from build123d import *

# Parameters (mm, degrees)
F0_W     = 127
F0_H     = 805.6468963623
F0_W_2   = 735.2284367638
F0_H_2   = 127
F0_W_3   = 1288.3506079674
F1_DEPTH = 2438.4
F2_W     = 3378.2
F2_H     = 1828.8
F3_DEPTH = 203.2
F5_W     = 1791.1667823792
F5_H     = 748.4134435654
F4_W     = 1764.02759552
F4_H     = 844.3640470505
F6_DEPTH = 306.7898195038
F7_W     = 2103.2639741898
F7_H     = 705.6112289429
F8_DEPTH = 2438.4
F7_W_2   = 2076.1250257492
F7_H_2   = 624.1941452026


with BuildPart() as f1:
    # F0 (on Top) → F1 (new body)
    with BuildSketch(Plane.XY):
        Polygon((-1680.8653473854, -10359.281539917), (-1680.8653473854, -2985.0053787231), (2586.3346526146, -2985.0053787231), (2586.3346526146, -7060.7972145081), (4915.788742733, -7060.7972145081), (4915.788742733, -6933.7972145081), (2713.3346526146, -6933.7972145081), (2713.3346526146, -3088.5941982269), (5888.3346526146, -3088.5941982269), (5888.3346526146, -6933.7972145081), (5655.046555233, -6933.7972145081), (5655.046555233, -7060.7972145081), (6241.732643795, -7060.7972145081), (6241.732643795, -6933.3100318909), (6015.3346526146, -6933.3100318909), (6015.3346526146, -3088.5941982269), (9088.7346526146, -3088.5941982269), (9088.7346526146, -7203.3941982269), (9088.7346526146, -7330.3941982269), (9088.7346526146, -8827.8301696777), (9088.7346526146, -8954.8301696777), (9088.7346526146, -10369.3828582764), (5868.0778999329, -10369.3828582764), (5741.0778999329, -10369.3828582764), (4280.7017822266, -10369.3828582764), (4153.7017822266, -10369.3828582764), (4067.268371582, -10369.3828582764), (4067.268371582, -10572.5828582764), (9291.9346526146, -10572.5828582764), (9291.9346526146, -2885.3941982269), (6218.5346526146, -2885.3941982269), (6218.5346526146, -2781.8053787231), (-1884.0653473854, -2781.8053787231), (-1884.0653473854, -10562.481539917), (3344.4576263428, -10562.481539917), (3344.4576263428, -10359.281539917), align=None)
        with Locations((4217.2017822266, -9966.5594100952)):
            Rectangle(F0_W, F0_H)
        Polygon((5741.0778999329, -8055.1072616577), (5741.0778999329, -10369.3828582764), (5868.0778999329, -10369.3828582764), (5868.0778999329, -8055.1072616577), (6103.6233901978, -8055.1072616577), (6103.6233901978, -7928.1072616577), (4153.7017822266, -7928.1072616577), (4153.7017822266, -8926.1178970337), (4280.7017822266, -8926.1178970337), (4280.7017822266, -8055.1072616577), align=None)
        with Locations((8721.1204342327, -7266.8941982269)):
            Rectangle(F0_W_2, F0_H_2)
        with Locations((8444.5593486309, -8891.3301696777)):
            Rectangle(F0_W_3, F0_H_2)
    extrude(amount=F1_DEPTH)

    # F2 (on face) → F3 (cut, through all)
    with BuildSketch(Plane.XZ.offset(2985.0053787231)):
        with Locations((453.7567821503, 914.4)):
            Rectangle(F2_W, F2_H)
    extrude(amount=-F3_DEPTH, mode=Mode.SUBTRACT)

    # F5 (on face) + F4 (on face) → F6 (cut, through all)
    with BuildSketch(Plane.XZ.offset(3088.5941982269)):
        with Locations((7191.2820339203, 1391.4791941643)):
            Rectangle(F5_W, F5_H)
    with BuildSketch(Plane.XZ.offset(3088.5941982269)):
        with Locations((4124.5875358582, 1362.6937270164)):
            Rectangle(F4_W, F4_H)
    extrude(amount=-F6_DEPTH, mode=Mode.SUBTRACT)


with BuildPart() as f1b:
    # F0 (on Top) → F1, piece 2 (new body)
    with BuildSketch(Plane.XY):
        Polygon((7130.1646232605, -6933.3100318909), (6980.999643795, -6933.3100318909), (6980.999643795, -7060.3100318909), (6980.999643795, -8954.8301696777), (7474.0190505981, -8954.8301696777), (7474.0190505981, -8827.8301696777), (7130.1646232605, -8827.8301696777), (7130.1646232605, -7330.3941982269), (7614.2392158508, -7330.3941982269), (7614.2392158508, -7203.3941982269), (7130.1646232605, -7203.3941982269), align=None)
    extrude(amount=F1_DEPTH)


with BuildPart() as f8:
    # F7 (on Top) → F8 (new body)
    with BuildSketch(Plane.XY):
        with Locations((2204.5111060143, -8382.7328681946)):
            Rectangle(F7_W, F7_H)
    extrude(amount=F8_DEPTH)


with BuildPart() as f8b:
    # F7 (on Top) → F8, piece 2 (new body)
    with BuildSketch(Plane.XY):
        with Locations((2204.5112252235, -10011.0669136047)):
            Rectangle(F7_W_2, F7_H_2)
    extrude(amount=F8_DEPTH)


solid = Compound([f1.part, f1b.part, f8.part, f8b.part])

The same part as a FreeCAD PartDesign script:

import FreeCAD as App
import Part
import Sketcher
Q = App.Units.Quantity

doc = App.newDocument("Part")
body = doc.addObject("PartDesign::Body", "Body")

sketch1 = body.newObject("Sketcher::SketchObject", "Sketch")
sketch1.AttachmentSupport = (doc.getObject("XY_Plane"), [""])
sketch1.MapMode = "FlatFace"
sketch1.addGeometry([
    Part.LineSegment(App.Vector(-1681, -10359, 0), App.Vector(-1681, -2985, 0)),
    Part.LineSegment(App.Vector(-1681, -2985, 0), App.Vector(2586, -2985, 0)),
    Part.LineSegment(App.Vector(2586, -2985, 0), App.Vector(2586, -7061, 0)),
    Part.LineSegment(App.Vector(2586, -7061, 0), App.Vector(4916, -7061, 0)),
    Part.LineSegment(App.Vector(4916, -7061, 0), App.Vector(4916, -6934, 0)),
    Part.LineSegment(App.Vector(4916, -6934, 0), App.Vector(2713, -6934, 0)),
    Part.LineSegment(App.Vector(2713, -6934, 0), App.Vector(2713, -3089, 0)),
    Part.LineSegment(App.Vector(2713, -3089, 0), App.Vector(5888, -3089, 0)),
    Part.LineSegment(App.Vector(5888, -3089, 0), App.Vector(5888, -6934, 0)),
    Part.LineSegment(App.Vector(5888, -6934, 0), App.Vector(5655, -6934, 0)),
    Part.LineSegment(App.Vector(5655, -6934, 0), App.Vector(5655, -7061, 0)),
    Part.LineSegment(App.Vector(5655, -7061, 0), App.Vector(6242, -7061, 0)),
    Part.LineSegment(App.Vector(6242, -7061, 0), App.Vector(6242, -6933, 0)),
    Part.LineSegment(App.Vector(6242, -6933, 0), App.Vector(6015, -6933, 0)),
    Part.LineSegment(App.Vector(6015, -6933, 0), App.Vector(6015, -3089, 0)),
    Part.LineSegment(App.Vector(6015, -3089, 0), App.Vector(9089, -3089, 0)),
    Part.LineSegment(App.Vector(9089, -3089, 0), App.Vector(9089, -7203, 0)),
    Part.LineSegment(App.Vector(9089, -7203, 0), App.Vector(8354, -7203, 0)),
    Part.LineSegment(App.Vector(8354, -7203, 0), App.Vector(8354, -7330, 0)),
    Part.LineSegment(App.Vector(8354, -7330, 0), App.Vector(9089, -7330, 0)),
    Part.LineSegment(App.Vector(9089, -7330, 0), App.Vector(9089, -8828, 0)),
    Part.LineSegment(App.Vector(9089, -8828, 0), App.Vector(7800, -8828, 0)),
    Part.LineSegment(App.Vector(7800, -8828, 0), App.Vector(7800, -8955, 0)),
    Part.LineSegment(App.Vector(7800, -8955, 0), App.Vector(9089, -8955, 0)),
    Part.LineSegment(App.Vector(9089, -8955, 0), App.Vector(9089, -10369, 0)),
    Part.LineSegment(App.Vector(9089, -10369, 0), App.Vector(5868, -10369, 0)),
    Part.LineSegment(App.Vector(5868, -10369, 0), App.Vector(5868, -8055, 0)),
    Part.LineSegment(App.Vector(5868, -8055, 0), App.Vector(6104, -8055, 0)),
    Part.LineSegment(App.Vector(6104, -8055, 0), App.Vector(6104, -7928, 0)),
    Part.LineSegment(App.Vector(6104, -7928, 0), App.Vector(4154, -7928, 0)),
    Part.LineSegment(App.Vector(4154, -7928, 0), App.Vector(4154, -8926, 0)),
    Part.LineSegment(App.Vector(4154, -8926, 0), App.Vector(4281, -8926, 0)),
    Part.LineSegment(App.Vector(4281, -8926, 0), App.Vector(4281, -8055, 0)),
    Part.LineSegment(App.Vector(4281, -8055, 0), App.Vector(5741, -8055, 0)),
    Part.LineSegment(App.Vector(5741, -8055, 0), App.Vector(5741, -10369, 0)),
    Part.LineSegment(App.Vector(5741, -10369, 0), App.Vector(4281, -10369, 0)),
    Part.LineSegment(App.Vector(4281, -10369, 0), App.Vector(4281, -9564, 0)),
    Part.LineSegment(App.Vector(4281, -9564, 0), App.Vector(4154, -9564, 0)),
    Part.LineSegment(App.Vector(4154, -9564, 0), App.Vector(4154, -10369, 0)),
    Part.LineSegment(App.Vector(4154, -10369, 0), App.Vector(4067, -10369, 0)),
    Part.LineSegment(App.Vector(4067, -10369, 0), App.Vector(4067, -10573, 0)),
    Part.LineSegment(App.Vector(4067, -10573, 0), App.Vector(9292, -10573, 0)),
    Part.LineSegment(App.Vector(9292, -10573, 0), App.Vector(9292, -2885, 0)),
    Part.LineSegment(App.Vector(9292, -2885, 0), App.Vector(6219, -2885, 0)),
    Part.LineSegment(App.Vector(6219, -2885, 0), App.Vector(6219, -2782, 0)),
    Part.LineSegment(App.Vector(6219, -2782, 0), App.Vector(-1884, -2782, 0)),
    Part.LineSegment(App.Vector(-1884, -2782, 0), App.Vector(-1884, -10562, 0)),
    Part.LineSegment(App.Vector(-1884, -10562, 0), App.Vector(3344, -10562, 0)),
    Part.LineSegment(App.Vector(3344, -10562, 0), App.Vector(3344, -10359, 0)),
    Part.LineSegment(App.Vector(3344, -10359, 0), App.Vector(-1681, -10359, 0)),
], False)
sketch1.addConstraint([
    Sketcher.Constraint("Coincident", 0, 2, 1, 1),
    Sketcher.Constraint("Coincident", 1, 2, 2, 1),
    Sketcher.Constraint("Coincident", 2, 2, 3, 1),
    Sketcher.Constraint("Coincident", 3, 2, 4, 1),
    Sketcher.Constraint("Coincident", 4, 2, 5, 1),
    Sketcher.Constraint("Coincident", 5, 2, 6, 1),
    Sketcher.Constraint("Coincident", 6, 2, 7, 1),
    Sketcher.Constraint("Coincident", 7, 2, 8, 1),
    Sketcher.Constraint("Coincident", 8, 2, 9, 1),
    Sketcher.Constraint("Coincident", 9, 2, 10, 1),
    Sketcher.Constraint("Coincident", 10, 2, 11, 1),
    Sketcher.Constraint("Coincident", 11, 2, 12, 1),
    Sketcher.Constraint("Coincident", 12, 2, 13, 1),
    Sketcher.Constraint("Coincident", 13, 2, 14, 1),
    Sketcher.Constraint("Coincident", 14, 2, 15, 1),
    Sketcher.Constraint("Coincident", 15, 2, 16, 1),
    Sketcher.Constraint("Coincident", 16, 2, 17, 1),
    Sketcher.Constraint("Coincident", 17, 2, 18, 1),
    Sketcher.Constraint("Coincident", 18, 2, 19, 1),
    Sketcher.Constraint("Coincident", 19, 2, 20, 1),
    Sketcher.Constraint("Coincident", 20, 2, 21, 1),
    Sketcher.Constraint("Coincident", 21, 2, 22, 1),
    Sketcher.Constraint("Coincident", 22, 2, 23, 1),
    Sketcher.Constraint("Coincident", 23, 2, 24, 1),
    Sketcher.Constraint("Coincident", 24, 2, 25, 1),
    Sketcher.Constraint("Coincident", 25, 2, 26, 1),
    Sketcher.Constraint("Coincident", 26, 2, 27, 1),
    Sketcher.Constraint("Coincident", 27, 2, 28, 1),
    Sketcher.Constraint("Coincident", 28, 2, 29, 1),
    Sketcher.Constraint("Coincident", 29, 2, 30, 1),
    Sketcher.Constraint("Coincident", 30, 2, 31, 1),
    Sketcher.Constraint("Coincident", 31, 2, 32, 1),
    Sketcher.Constraint("Coincident", 32, 2, 33, 1),
    Sketcher.Constraint("Coincident", 33, 2, 34, 1),
    Sketcher.Constraint("Coincident", 34, 2, 35, 1),
    Sketcher.Constraint("Coincident", 35, 2, 36, 1),
    Sketcher.Constraint("Coincident", 36, 2, 37, 1),
    Sketcher.Constraint("Coincident", 37, 2, 38, 1),
    Sketcher.Constraint("Coincident", 38, 2, 39, 1),
    Sketcher.Constraint("Coincident", 39, 2, 40, 1),
    Sketcher.Constraint("Coincident", 40, 2, 41, 1),
    Sketcher.Constraint("Coincident", 41, 2, 42, 1),
    Sketcher.Constraint("Coincident", 42, 2, 43, 1),
    Sketcher.Constraint("Coincident", 43, 2, 44, 1),
    Sketcher.Constraint("Coincident", 44, 2, 45, 1),
    Sketcher.Constraint("Coincident", 45, 2, 46, 1),
    Sketcher.Constraint("Coincident", 46, 2, 47, 1),
    Sketcher.Constraint("Coincident", 47, 2, 48, 1),
    Sketcher.Constraint("Coincident", 48, 2, 49, 1),
    Sketcher.Constraint("Coincident", 49, 2, 0, 1),
    Sketcher.Constraint("Vertical", 0),
    Sketcher.Constraint("Horizontal", 1),
    Sketcher.Constraint("Vertical", 2),
    Sketcher.Constraint("Horizontal", 3),
    Sketcher.Constraint("Vertical", 4),
    Sketcher.Constraint("Horizontal", 5),
    Sketcher.Constraint("Vertical", 6),
    Sketcher.Constraint("Horizontal", 7),
    Sketcher.Constraint("Vertical", 8),
    Sketcher.Constraint("Horizontal", 9),
    Sketcher.Constraint("Vertical", 10),
    Sketcher.Constraint("Horizontal", 11),
    Sketcher.Constraint("Vertical", 12),
    Sketcher.Constraint("Horizontal", 13),
    Sketcher.Constraint("Vertical", 14),
    Sketcher.Constraint("Horizontal", 15),
    Sketcher.Constraint("Vertical", 16),
    Sketcher.Constraint("Horizontal", 17),
    Sketcher.Constraint("Vertical", 18),
    Sketcher.Constraint("Horizontal", 19),
    Sketcher.Constraint("Vertical", 20),
    Sketcher.Constraint("Horizontal", 21),
    Sketcher.Constraint("Vertical", 22),
    Sketcher.Constraint("Horizontal", 23),
    Sketcher.Constraint("Vertical", 24),
    Sketcher.Constraint("Horizontal", 25),
    Sketcher.Constraint("Vertical", 26),
    Sketcher.Constraint("Horizontal", 27),
    Sketcher.Constraint("Vertical", 28),
    Sketcher.Constraint("Horizontal", 29),
    Sketcher.Constraint("Vertical", 30),
    Sketcher.Constraint("Horizontal", 31),
    Sketcher.Constraint("Vertical", 32),
    Sketcher.Constraint("Horizontal", 33),
    Sketcher.Constraint("Vertical", 34),
    Sketcher.Constraint("Horizontal", 35),
    Sketcher.Constraint("Vertical", 36),
    Sketcher.Constraint("Horizontal", 37),
    Sketcher.Constraint("Vertical", 38),
    Sketcher.Constraint("Horizontal", 39),
    Sketcher.Constraint("Vertical", 40),
    Sketcher.Constraint("Horizontal", 41),
    Sketcher.Constraint("Vertical", 42),
    Sketcher.Constraint("Horizontal", 43),
    Sketcher.Constraint("Vertical", 44),
    Sketcher.Constraint("Horizontal", 45),
    Sketcher.Constraint("Vertical", 46),
    Sketcher.Constraint("Horizontal", 47),
    Sketcher.Constraint("Vertical", 48),
    Sketcher.Constraint("Horizontal", 49),
    Sketcher.Constraint("Horizontal", 5, 2, 8, 2),
    Sketcher.Constraint("Horizontal", 3, 2, 10, 2),
    Sketcher.Constraint("Horizontal", 7, 2, 14, 2),
    Sketcher.Constraint("Horizontal", 27, 2, 32, 2),
    Sketcher.Constraint("Horizontal", 25, 2, 34, 2),
    Sketcher.Constraint("Horizontal", 35, 2, 38, 2),
    Sketcher.Constraint("Vertical", 16, 2, 19, 2),
    Sketcher.Constraint("Vertical", 20, 2, 23, 2),
    Sketcher.Constraint("Vertical", 32, 2, 35, 2),
    Sketcher.Constraint("Vertical", 30, 2, 37, 2),
    Sketcher.Constraint("Equal", 15, 43),
    Sketcher.Constraint("Equal", 37, 4),
    Sketcher.Constraint("Equal", 10, 18),
    Sketcher.Constraint("Equal", 18, 22),
    Sketcher.Constraint("Equal", 22, 28),
    Sketcher.Constraint("Equal", 40, 48),
    Sketcher.Constraint("DistanceX", 1, 1, 1, 2, Q("168 in")),
    Sketcher.Constraint("DistanceX", 7, 1, 7, 2, Q("125 in")),
    Sketcher.Constraint("DistanceX", 15, 1, 15, 2, Q("121 in")),
    Sketcher.Constraint("DistanceX", 31, 1, 31, 2, Q("5 in")),
    Sketcher.Constraint("DistanceX", 45, 2, 45, 1, Q("319 in")),
    Sketcher.Constraint("DistanceY", 16, 2, 16, 1, Q("162 in")),
    Sketcher.Constraint("DistanceY", 40, 2, 40, 1, Q("8 in")),
    Sketcher.Constraint("DistanceX", 2, 2, 5, 2, Q("5 in")),
    Sketcher.Constraint("DistanceX", 8, 2, 13, 2, Q("5 in")),
    Sketcher.Constraint("DistanceX", 33, 2, 26, 2, Q("5 in")),
    Sketcher.Constraint("DistanceX", 24, 2, 41, 2, Q("8 in")),
    Sketcher.Constraint("DistanceY", 15, 2, 42, 2, Q("8 in")),
    Sketcher.Constraint("DistanceY", 0, 2, 45, 2, Q("8 in")),
    Sketcher.Constraint("DistanceY", 44, 1, 44, 2, Q("4.0783 in")),
    Sketcher.Constraint("DistanceX", 3, 1, 3, 2, 2329.45409),
    Sketcher.Constraint("DistanceX", 11, 1, 11, 2, 586.686089),
    Sketcher.Constraint("DistanceX", 13, 2, 13, 1, 226.397991),
    Sketcher.Constraint("DistanceX", 27, 1, 27, 2, 235.54549),
    Sketcher.Constraint("DistanceX", 39, 2, 39, 1, 86.433411),
    Sketcher.Constraint("DistanceX", 41, 1, 41, 2, 5224.666281),
    Sketcher.Constraint("DistanceY", 0, 1, 0, 2, 7374.276161),
    Sketcher.Constraint("DistanceY", 20, 2, 20, 1, 1497.435971),
    Sketcher.Constraint("DistanceY", 24, 2, 24, 1, 1414.552689),
    Sketcher.Constraint("DistanceY", 6, 2, -1, 1, 3088.594198),
    Sketcher.Constraint("DistanceX", -1, 1, 25, 2, 5868.0779),
    Sketcher.Constraint("DistanceY", 36, 2, 32, 2, 1508.6287),
    Sketcher.Constraint("DistanceX", 17, 2, 17, 1, 735.228437),
    Sketcher.Constraint("DistanceX", 21, 2, 21, 1, 1288.350608),
    Sketcher.Constraint("DistanceX", 25, 2, 25, 1, 3220.656753),
    Sketcher.Constraint("DistanceX", 47, 1, 47, 2, 5228.522974),
    Sketcher.Constraint("DistanceY", 2, 2, 2, 1, 4075.791836),
    Sketcher.Constraint("DistanceY", 12, 1, 12, 2, 127.487183),
    Sketcher.Constraint("DistanceY", 26, 1, 26, 2, 2314.275597),
    Sketcher.Constraint("DistanceY", 30, 2, 30, 1, 998.010635),
])
pad1 = body.newObject("PartDesign::Pad", "Pad")
pad1.Profile = sketch1
pad1.Length = Q("96 in")

sketch2 = body.newObject("Sketcher::SketchObject", "Sketch001")
sketch2.AttachmentSupport = (doc.getObject("XZ_Plane"), [""])
sketch2.MapMode = "FlatFace"
sketch2.AttachmentOffset = App.Placement(App.Vector(0, 0, 2985.005379), App.Rotation())
sketch2.addGeometry([
    Part.LineSegment(App.Vector(-1235, 1829, 0), App.Vector(-1235, 0, 0)),
    Part.LineSegment(App.Vector(-1235, 0, 0), App.Vector(2143, 0, 0)),
    Part.LineSegment(App.Vector(2143, 0, 0), App.Vector(2143, 1829, 0)),
    Part.LineSegment(App.Vector(2143, 1829, 0), App.Vector(-1235, 1829, 0)),
], False)
sketch2.addConstraint([
    Sketcher.Constraint("Coincident", 0, 2, 1, 1),
    Sketcher.Constraint("Coincident", 1, 2, 2, 1),
    Sketcher.Constraint("Coincident", 2, 2, 3, 1),
    Sketcher.Constraint("Coincident", 3, 2, 0, 1),
    Sketcher.Constraint("Vertical", 0),
    Sketcher.Constraint("Horizontal", 1),
    Sketcher.Constraint("Vertical", 2),
    Sketcher.Constraint("Horizontal", 3),
    Sketcher.Constraint("PointOnObject", 0, 2, -1),
    Sketcher.Constraint("DistanceX", 1, 1, 1, 2, Q("133 in")),
    Sketcher.Constraint("DistanceY", 0, 2, 0, 1, Q("72 in")),
    Sketcher.Constraint("DistanceX", 0, 2, -1, 1, 1235.343218),
])
pocket1 = body.newObject("PartDesign::Pocket", "Pocket")
pocket1.Profile = sketch2
pocket1.Type = "ThroughAll"

sketch3 = body.newObject("Sketcher::SketchObject", "Sketch002")
sketch3.AttachmentSupport = (doc.getObject("XZ_Plane"), [""])
sketch3.MapMode = "FlatFace"
sketch3.AttachmentOffset = App.Placement(App.Vector(0, 0, 3088.594198), App.Rotation())
sketch3.addGeometry([
    Part.LineSegment(App.Vector(6296, 1766, 0), App.Vector(6296, 1017, 0)),
    Part.LineSegment(App.Vector(6296, 1017, 0), App.Vector(8087, 1017, 0)),
    Part.LineSegment(App.Vector(8087, 1017, 0), App.Vector(8087, 1766, 0)),
    Part.LineSegment(App.Vector(8087, 1766, 0), App.Vector(6296, 1766, 0)),
    Part.LineSegment(App.Vector(3243, 1785, 0), App.Vector(3243, 941, 0)),
    Part.LineSegment(App.Vector(3243, 941, 0), App.Vector(5007, 941, 0)),
    Part.LineSegment(App.Vector(5007, 941, 0), App.Vector(5007, 1785, 0)),
    Part.LineSegment(App.Vector(5007, 1785, 0), App.Vector(3243, 1785, 0)),
], False)
sketch3.addConstraint([
    Sketcher.Constraint("Coincident", 0, 2, 1, 1),
    Sketcher.Constraint("Coincident", 1, 2, 2, 1),
    Sketcher.Constraint("Coincident", 2, 2, 3, 1),
    Sketcher.Constraint("Coincident", 3, 2, 0, 1),
    Sketcher.Constraint("Coincident", 4, 2, 5, 1),
    Sketcher.Constraint("Coincident", 5, 2, 6, 1),
    Sketcher.Constraint("Coincident", 6, 2, 7, 1),
    Sketcher.Constraint("Coincident", 7, 2, 4, 1),
    Sketcher.Constraint("Vertical", 0),
    Sketcher.Constraint("Horizontal", 1),
    Sketcher.Constraint("Vertical", 2),
    Sketcher.Constraint("Horizontal", 3),
    Sketcher.Constraint("Vertical", 4),
    Sketcher.Constraint("Horizontal", 5),
    Sketcher.Constraint("Vertical", 6),
    Sketcher.Constraint("Horizontal", 7),
    Sketcher.Constraint("DistanceX", 1, 1, 1, 2, 1791.166782),
    Sketcher.Constraint("DistanceX", 5, 1, 5, 2, 1764.027596),
    Sketcher.Constraint("DistanceY", 0, 2, 0, 1, 748.413444),
    Sketcher.Constraint("DistanceY", 4, 2, 4, 1, 844.364047),
    Sketcher.Constraint("DistanceX", -1, 1, 4, 2, 3242.573738),
    Sketcher.Constraint("DistanceY", -1, 1, 6, 2, 1784.875751),
    Sketcher.Constraint("DistanceY", 4, 2, 0, 2, 76.760769),
    Sketcher.Constraint("DistanceX", 5, 2, 0, 2, 1289.097309),
])
pocket2 = body.newObject("PartDesign::Pocket", "Pocket001")
pocket2.Profile = sketch3
pocket2.Type = "ThroughAll"
body2 = doc.addObject("PartDesign::Body", "Body001")

sketch4 = body2.newObject("Sketcher::SketchObject", "Sketch003")
sketch4.AttachmentSupport = (doc.getObject("XY_Plane001"), [""])
sketch4.MapMode = "FlatFace"
sketch4.addGeometry([
    Part.LineSegment(App.Vector(7130, -6933, 0), App.Vector(6981, -6933, 0)),
    Part.LineSegment(App.Vector(6981, -6933, 0), App.Vector(6981, -8955, 0)),
    Part.LineSegment(App.Vector(6981, -8955, 0), App.Vector(7474, -8955, 0)),
    Part.LineSegment(App.Vector(7474, -8955, 0), App.Vector(7474, -8828, 0)),
    Part.LineSegment(App.Vector(7474, -8828, 0), App.Vector(7130, -8828, 0)),
    Part.LineSegment(App.Vector(7130, -8828, 0), App.Vector(7130, -7330, 0)),
    Part.LineSegment(App.Vector(7130, -7330, 0), App.Vector(7614, -7330, 0)),
    Part.LineSegment(App.Vector(7614, -7330, 0), App.Vector(7614, -7203, 0)),
    Part.LineSegment(App.Vector(7614, -7203, 0), App.Vector(7130, -7203, 0)),
    Part.LineSegment(App.Vector(7130, -7203, 0), App.Vector(7130, -6933, 0)),
], False)
sketch4.addConstraint([
    Sketcher.Constraint("Coincident", 0, 2, 1, 1),
    Sketcher.Constraint("Coincident", 1, 2, 2, 1),
    Sketcher.Constraint("Coincident", 2, 2, 3, 1),
    Sketcher.Constraint("Coincident", 3, 2, 4, 1),
    Sketcher.Constraint("Coincident", 4, 2, 5, 1),
    Sketcher.Constraint("Coincident", 5, 2, 6, 1),
    Sketcher.Constraint("Coincident", 6, 2, 7, 1),
    Sketcher.Constraint("Coincident", 7, 2, 8, 1),
    Sketcher.Constraint("Coincident", 8, 2, 9, 1),
    Sketcher.Constraint("Coincident", 9, 2, 0, 1),
    Sketcher.Constraint("Horizontal", 0),
    Sketcher.Constraint("Vertical", 1),
    Sketcher.Constraint("Horizontal", 2),
    Sketcher.Constraint("Vertical", 3),
    Sketcher.Constraint("Horizontal", 4),
    Sketcher.Constraint("Vertical", 5),
    Sketcher.Constraint("Horizontal", 6),
    Sketcher.Constraint("Vertical", 7),
    Sketcher.Constraint("Horizontal", 8),
    Sketcher.Constraint("Vertical", 9),
    Sketcher.Constraint("Vertical", 5, 2, 8, 2),
    Sketcher.Constraint("Equal", 3, 7),
    Sketcher.Constraint("DistanceY", 3, 1, 3, 2, Q("5 in")),
    Sketcher.Constraint("DistanceX", 0, 2, 0, 1, 149.164979),
    Sketcher.Constraint("DistanceY", 5, 1, 5, 2, 1497.435971),
    Sketcher.Constraint("DistanceY", 5, 2, -1, 1, 7330.394198),
    Sketcher.Constraint("DistanceX", 2, 1, 2, 2, 493.019407),
    Sketcher.Constraint("DistanceX", 6, 1, 6, 2, 484.074593),
    Sketcher.Constraint("DistanceY", 1, 2, 1, 1, 2021.520138),
    Sketcher.Constraint("DistanceX", -1, 1, 2, 2, 7474.019051),
])
pad2 = body2.newObject("PartDesign::Pad", "Pad001")
pad2.Profile = sketch4
pad2.Length = Q("96 in")
body3 = doc.addObject("PartDesign::Body", "Body002")

sketch5 = body3.newObject("Sketcher::SketchObject", "Sketch004")
sketch5.AttachmentSupport = (doc.getObject("XY_Plane002"), [""])
sketch5.MapMode = "FlatFace"
sketch5.addGeometry([
    Part.LineSegment(App.Vector(1153, -8030, 0), App.Vector(1153, -8736, 0)),
    Part.LineSegment(App.Vector(1153, -8736, 0), App.Vector(3256, -8736, 0)),
    Part.LineSegment(App.Vector(3256, -8736, 0), App.Vector(3256, -8030, 0)),
    Part.LineSegment(App.Vector(3256, -8030, 0), App.Vector(1153, -8030, 0)),
], False)
sketch5.addConstraint([
    Sketcher.Constraint("Coincident", 0, 2, 1, 1),
    Sketcher.Constraint("Coincident", 1, 2, 2, 1),
    Sketcher.Constraint("Coincident", 2, 2, 3, 1),
    Sketcher.Constraint("Coincident", 3, 2, 0, 1),
    Sketcher.Constraint("Vertical", 0),
    Sketcher.Constraint("Horizontal", 1),
    Sketcher.Constraint("Vertical", 2),
    Sketcher.Constraint("Horizontal", 3),
    Sketcher.Constraint("DistanceY", 0, 2, 0, 1, 705.611229),
    Sketcher.Constraint("DistanceX", 1, 1, 1, 2, 2103.263974),
    Sketcher.Constraint("DistanceX", -1, 1, 0, 2, 1152.879119),
    Sketcher.Constraint("DistanceY", 0, 2, -1, 1, 8735.538483),
])
pad3 = body3.newObject("PartDesign::Pad", "Pad002")
pad3.Profile = sketch5
pad3.Length = Q("96 in")
body4 = doc.addObject("PartDesign::Body", "Body003")

sketch6 = body4.newObject("Sketcher::SketchObject", "Sketch005")
sketch6.AttachmentSupport = (doc.getObject("XY_Plane003"), [""])
sketch6.MapMode = "FlatFace"
sketch6.addGeometry([
    Part.LineSegment(App.Vector(1166, -9699, 0), App.Vector(1166, -10323, 0)),
    Part.LineSegment(App.Vector(1166, -10323, 0), App.Vector(3243, -10323, 0)),
    Part.LineSegment(App.Vector(3243, -10323, 0), App.Vector(3243, -9699, 0)),
    Part.LineSegment(App.Vector(3243, -9699, 0), App.Vector(1166, -9699, 0)),
], False)
sketch6.addConstraint([
    Sketcher.Constraint("Coincident", 0, 2, 1, 1),
    Sketcher.Constraint("Coincident", 1, 2, 2, 1),
    Sketcher.Constraint("Coincident", 2, 2, 3, 1),
    Sketcher.Constraint("Coincident", 3, 2, 0, 1),
    Sketcher.Constraint("Vertical", 0),
    Sketcher.Constraint("Horizontal", 1),
    Sketcher.Constraint("Vertical", 2),
    Sketcher.Constraint("Horizontal", 3),
    Sketcher.Constraint("DistanceX", 1, 1, 1, 2, 2076.125026),
    Sketcher.Constraint("DistanceY", 0, 2, 0, 1, 624.194145),
    Sketcher.Constraint("DistanceX", -1, 1, 1, 2, 3242.573738),
    Sketcher.Constraint("DistanceY", 2, 2, -1, 1, 9698.969841),
])
pad4 = body4.newObject("PartDesign::Pad", "Pad003")
pad4.Profile = sketch6
pad4.Length = Q("96 in")

doc.recompute()
